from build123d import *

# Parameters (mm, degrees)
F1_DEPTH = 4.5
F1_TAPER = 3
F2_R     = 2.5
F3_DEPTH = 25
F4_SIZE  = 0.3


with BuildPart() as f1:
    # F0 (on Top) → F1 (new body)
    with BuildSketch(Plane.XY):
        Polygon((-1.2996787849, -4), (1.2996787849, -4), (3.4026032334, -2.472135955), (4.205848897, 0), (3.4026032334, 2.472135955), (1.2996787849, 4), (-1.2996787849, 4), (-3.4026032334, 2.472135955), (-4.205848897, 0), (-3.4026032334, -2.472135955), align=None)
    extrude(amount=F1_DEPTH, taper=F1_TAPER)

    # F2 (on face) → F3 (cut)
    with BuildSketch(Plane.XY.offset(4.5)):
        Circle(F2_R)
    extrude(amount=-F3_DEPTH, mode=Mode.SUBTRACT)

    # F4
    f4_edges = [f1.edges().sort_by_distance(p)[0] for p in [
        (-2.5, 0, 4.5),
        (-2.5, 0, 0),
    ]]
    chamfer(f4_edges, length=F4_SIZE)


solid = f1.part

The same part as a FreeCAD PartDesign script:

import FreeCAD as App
import Part
import Sketcher

V = App.Vector
Q = App.Units.Quantity


def edges_at(feature, points):
    """Names of the edges that pass closest to the given points."""
    edges = feature.Shape.Edges
    near = lambda p: min(range(len(edges)), key=lambda i: edges[i].distToShape(Part.Vertex(*p))[0])
    return sorted({f"Edge{near(p) + 1}" for p in points})

doc = App.newDocument("Part")
body = doc.addObject("PartDesign::Body", "Body")

# Sketch on XY plane
sketch1 = doc.addObject("Sketcher::SketchObject", "Sketch")
body.addObject(sketch1)
sketch1.AttachmentSupport = (doc.XY_Plane, [""])
sketch1.MapMode = "FlatFace"
sketch1.addGeometry(Part.LineSegment(V(-1.3, -4, 0), V(1.3, -4, 0)), False)
sketch1.addGeometry(Part.LineSegment(V(1.3, -4, 0), V(3.4, -2.5, 0)), False)
sketch1.addGeometry(Part.LineSegment(V(3.4, -2.5, 0), V(4.2, 0, 0)), False)
sketch1.addGeometry(Part.LineSegment(V(4.2, 0, 0), V(3.4, 2.5, 0)), False)
sketch1.addGeometry(Part.LineSegment(V(3.4, 2.5, 0), V(1.3, 4, 0)), False)
sketch1.addGeometry(Part.LineSegment(V(1.3, 4, 0), V(-1.3, 4, 0)), False)
sketch1.addGeometry(Part.LineSegment(V(-1.3, 4, 0), V(-3.4, 2.5, 0)), False)
sketch1.addGeometry(Part.LineSegment(V(-3.4, 2.5, 0), V(-4.2, 0, 0)), False)
sketch1.addGeometry(Part.LineSegment(V(-4.2, 0, 0), V(-3.4, -2.5, 0)), False)
sketch1.addGeometry(Part.LineSegment(V(-3.4, -2.5, 0), V(-1.3, -4, 0)), False)
sketch1.addConstraint(Sketcher.Constraint("Coincident", 0, 2, 1, 1))
sketch1.addConstraint(Sketcher.Constraint("Coincident", 1, 2, 2, 1))
sketch1.addConstraint(Sketcher.Constraint("Coincident", 2, 2, 3, 1))
sketch1.addConstraint(Sketcher.Constraint("Coincident", 3, 2, 4, 1))
sketch1.addConstraint(Sketcher.Constraint("Coincident", 4, 2, 5, 1))
sketch1.addConstraint(Sketcher.Constraint("Coincident", 5, 2, 6, 1))
sketch1.addConstraint(Sketcher.Constraint("Coincident", 6, 2, 7, 1))
sketch1.addConstraint(Sketcher.Constraint("Coincident", 7, 2, 8, 1))
sketch1.addConstraint(Sketcher.Constraint("Coincident", 8, 2, 9, 1))
sketch1.addConstraint(Sketcher.Constraint("Coincident", 9, 2, 0, 1))
sketch1.addConstraint(Sketcher.Constraint("Horizontal", 0))
sketch1.addConstraint(Sketcher.Constraint("Horizontal", 5))
sketch1.addConstraint(Sketcher.Constraint("Symmetric", 0, 2, 5, 2, -1, 1))
sketch1.addConstraint(Sketcher.Constraint("Symmetric", 1, 2, 6, 2, -1, 1))
sketch1.addConstraint(Sketcher.Constraint("Symmetric", 2, 2, 7, 2, -1, 1))
sketch1.addConstraint(Sketcher.Constraint("Symmetric", 3, 2, 8, 2, -1, 1))
sketch1.addConstraint(Sketcher.Constraint("Symmetric", 3, 2, 6, 2, -2))
sketch1.addConstraint(Sketcher.Constraint("PointOnObject", 2, 2, -1))
sketch1.addConstraint(Sketcher.Constraint("Parallel", 4, 9))
sketch1.addConstraint(Sketcher.Constraint("Vertical", 0, 2, 4, 2))
sketch1.addConstraint(Sketcher.Constraint("Equal", 1, 2))
sketch1.addConstraint(Sketcher.Constraint("Angle", 1, Q("36 deg")))
sketch1.addConstraint(Sketcher.Constraint("Angle", 2, Q("72 deg")))
sketch1.addConstraint(Sketcher.Constraint("DistanceY", 0, 2, -1, 1, 4.0))
sketch1.addConstraint(Sketcher.Constraint("DistanceX", 0, 1, 0, 2, 2.599358))
pad1 = doc.addObject("PartDesign::Pad", "Pad")
body.addObject(pad1)
pad1.Profile = sketch1
pad1.Length = 4.5
pad1.TaperAngle = -3

# Sketch on XY plane
sketch2 = doc.addObject("Sketcher::SketchObject", "Sketch001")
body.addObject(sketch2)
sketch2.AttachmentSupport = (doc.XY_Plane, [""])
sketch2.MapMode = "FlatFace"
sketch2.AttachmentOffset = App.Placement(V(0, 0, 4.5), App.Rotation())
sketch2.addGeometry(Part.Circle(V(0, 0, 0), V(0, 0, 1), 2.5), False)
sketch2.addConstraint(Sketcher.Constraint("Coincident", 0, 3, -1, 1))
sketch2.addConstraint(Sketcher.Constraint("Diameter", 0, 5.0))
pocket1 = doc.addObject("PartDesign::Pocket", "Pocket")
body.addObject(pocket1)
pocket1.Profile = sketch2
pocket1.Length = 25
doc.recompute()

chamfer = doc.addObject("PartDesign::Chamfer", "Chamfer")
body.addObject(chamfer)
chamfer.Base = (pocket1, edges_at(pocket1, [(-2.5, 0, 4.5), (-2.5, 0, 0)]))
chamfer.Size = 0.3

doc.recompute()
